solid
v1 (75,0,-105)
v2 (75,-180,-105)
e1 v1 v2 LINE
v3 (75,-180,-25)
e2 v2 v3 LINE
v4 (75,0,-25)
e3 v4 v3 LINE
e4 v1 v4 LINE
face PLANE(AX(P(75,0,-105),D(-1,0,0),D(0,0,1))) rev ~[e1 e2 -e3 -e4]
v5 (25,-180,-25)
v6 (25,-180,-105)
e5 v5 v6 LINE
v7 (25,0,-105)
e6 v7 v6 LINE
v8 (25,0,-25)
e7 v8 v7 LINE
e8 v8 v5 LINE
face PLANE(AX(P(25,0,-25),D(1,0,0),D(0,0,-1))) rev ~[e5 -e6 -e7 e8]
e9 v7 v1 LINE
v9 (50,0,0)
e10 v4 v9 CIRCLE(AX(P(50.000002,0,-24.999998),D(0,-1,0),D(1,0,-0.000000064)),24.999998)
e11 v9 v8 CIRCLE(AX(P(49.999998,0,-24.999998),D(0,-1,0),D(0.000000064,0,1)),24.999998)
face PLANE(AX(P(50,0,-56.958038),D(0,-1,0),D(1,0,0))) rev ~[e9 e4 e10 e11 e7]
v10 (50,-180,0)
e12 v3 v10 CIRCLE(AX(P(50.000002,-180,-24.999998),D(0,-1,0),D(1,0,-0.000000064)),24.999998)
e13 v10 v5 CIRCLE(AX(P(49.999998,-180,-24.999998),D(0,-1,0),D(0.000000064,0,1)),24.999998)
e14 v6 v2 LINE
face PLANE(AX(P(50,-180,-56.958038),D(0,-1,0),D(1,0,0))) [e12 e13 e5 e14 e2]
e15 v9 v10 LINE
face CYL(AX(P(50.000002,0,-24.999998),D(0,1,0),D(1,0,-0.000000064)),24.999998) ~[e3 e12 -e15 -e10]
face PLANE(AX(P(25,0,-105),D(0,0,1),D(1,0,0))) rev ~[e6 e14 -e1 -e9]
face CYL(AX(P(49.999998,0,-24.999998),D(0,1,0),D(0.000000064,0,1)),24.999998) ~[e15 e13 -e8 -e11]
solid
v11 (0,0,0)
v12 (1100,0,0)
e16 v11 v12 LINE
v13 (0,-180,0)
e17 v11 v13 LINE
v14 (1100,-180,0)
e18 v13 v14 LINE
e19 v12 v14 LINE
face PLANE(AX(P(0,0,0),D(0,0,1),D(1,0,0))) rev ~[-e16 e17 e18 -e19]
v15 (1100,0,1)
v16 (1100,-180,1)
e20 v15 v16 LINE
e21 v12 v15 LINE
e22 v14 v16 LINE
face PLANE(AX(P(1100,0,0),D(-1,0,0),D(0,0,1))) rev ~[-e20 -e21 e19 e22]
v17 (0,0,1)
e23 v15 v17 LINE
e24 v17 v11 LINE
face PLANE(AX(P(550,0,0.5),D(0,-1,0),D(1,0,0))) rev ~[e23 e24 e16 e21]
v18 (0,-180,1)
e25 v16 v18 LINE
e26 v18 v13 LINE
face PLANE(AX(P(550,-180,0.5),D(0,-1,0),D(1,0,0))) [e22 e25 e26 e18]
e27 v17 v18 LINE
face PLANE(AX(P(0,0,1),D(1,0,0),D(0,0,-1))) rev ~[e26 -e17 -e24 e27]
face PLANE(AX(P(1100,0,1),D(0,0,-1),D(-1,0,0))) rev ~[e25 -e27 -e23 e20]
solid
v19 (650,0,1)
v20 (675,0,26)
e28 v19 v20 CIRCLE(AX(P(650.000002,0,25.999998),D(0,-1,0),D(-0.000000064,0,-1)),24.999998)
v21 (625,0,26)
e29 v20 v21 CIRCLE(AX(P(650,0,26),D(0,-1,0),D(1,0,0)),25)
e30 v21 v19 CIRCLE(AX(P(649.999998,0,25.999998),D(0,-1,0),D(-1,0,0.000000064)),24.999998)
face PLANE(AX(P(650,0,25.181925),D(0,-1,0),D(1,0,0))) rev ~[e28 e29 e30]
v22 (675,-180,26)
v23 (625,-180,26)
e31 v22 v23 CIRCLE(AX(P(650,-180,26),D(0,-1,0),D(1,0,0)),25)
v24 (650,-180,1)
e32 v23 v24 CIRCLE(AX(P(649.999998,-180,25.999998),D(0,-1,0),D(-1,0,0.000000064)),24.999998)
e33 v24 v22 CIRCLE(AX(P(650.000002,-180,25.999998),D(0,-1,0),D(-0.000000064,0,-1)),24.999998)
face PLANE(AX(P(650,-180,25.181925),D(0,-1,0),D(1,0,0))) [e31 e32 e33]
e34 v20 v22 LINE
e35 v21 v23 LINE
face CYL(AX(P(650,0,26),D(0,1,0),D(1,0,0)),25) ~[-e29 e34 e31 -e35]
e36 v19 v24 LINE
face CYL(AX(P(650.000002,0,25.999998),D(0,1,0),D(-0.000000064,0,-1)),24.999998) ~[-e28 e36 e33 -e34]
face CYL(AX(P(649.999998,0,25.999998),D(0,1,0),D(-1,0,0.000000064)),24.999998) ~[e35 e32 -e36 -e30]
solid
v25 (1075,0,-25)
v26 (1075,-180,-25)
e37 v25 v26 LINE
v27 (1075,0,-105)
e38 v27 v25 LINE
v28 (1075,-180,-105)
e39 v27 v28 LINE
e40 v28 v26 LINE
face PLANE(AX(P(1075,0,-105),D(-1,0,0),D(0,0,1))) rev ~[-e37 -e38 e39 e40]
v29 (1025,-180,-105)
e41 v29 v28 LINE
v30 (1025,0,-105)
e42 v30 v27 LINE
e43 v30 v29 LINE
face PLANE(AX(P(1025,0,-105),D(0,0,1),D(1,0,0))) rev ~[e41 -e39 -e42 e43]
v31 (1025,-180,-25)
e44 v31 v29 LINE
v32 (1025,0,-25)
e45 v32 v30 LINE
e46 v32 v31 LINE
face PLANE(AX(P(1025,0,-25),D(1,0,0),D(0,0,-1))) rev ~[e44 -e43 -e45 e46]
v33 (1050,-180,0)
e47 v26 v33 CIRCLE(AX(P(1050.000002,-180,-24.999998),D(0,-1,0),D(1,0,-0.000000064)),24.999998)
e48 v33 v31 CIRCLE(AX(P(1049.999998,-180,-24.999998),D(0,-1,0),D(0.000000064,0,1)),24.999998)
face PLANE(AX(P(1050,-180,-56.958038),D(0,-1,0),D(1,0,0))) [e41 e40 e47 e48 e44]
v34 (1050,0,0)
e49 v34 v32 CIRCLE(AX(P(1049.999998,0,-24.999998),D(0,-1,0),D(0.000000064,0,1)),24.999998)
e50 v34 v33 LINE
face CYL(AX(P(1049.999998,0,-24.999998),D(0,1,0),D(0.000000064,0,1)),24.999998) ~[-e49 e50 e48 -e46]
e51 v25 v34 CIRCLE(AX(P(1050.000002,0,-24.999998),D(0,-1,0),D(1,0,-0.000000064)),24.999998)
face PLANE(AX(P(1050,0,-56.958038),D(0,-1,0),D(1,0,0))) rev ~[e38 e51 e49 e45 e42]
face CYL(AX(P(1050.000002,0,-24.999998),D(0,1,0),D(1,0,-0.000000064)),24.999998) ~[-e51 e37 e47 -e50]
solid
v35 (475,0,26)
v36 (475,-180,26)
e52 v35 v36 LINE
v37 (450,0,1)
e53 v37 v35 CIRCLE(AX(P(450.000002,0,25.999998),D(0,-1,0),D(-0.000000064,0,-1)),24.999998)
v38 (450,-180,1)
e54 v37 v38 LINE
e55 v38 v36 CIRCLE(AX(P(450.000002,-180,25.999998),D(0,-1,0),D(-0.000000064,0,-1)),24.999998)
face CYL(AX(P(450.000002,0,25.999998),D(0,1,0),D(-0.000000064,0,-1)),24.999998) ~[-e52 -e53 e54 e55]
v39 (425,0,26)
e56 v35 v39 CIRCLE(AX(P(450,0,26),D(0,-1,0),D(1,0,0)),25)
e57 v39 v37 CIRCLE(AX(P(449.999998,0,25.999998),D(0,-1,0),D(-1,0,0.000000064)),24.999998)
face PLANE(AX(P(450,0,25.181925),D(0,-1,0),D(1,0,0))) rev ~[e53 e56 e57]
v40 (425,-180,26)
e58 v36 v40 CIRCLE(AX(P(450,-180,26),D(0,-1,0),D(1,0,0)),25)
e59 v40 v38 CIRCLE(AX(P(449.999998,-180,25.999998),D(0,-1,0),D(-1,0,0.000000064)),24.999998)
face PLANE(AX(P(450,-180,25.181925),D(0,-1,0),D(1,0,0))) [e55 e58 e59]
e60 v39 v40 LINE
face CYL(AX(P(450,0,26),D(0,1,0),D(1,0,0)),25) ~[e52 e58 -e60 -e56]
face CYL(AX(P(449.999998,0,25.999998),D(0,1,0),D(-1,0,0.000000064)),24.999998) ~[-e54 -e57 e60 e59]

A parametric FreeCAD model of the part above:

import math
import FreeCAD as App
import Part
import Sketcher

V = App.Vector
Q = App.Units.Quantity


def add_polygon(sketch, points):
    """Adds a closed chain of lines whose ends are joined by coincident constraints."""
    first, n = sketch.GeometryCount, len(points)
    for a, b in zip(points, points[1:] + points[:1]):
        sketch.addGeometry(Part.LineSegment(App.Vector(*a, 0), App.Vector(*b, 0)), False)
    for i in range(n):
        sketch.addConstraint(Sketcher.Constraint("Coincident", first + i, 2, first + (i + 1) % n, 1))

doc = App.newDocument("Part")
body = doc.addObject("PartDesign::Body", "Body")

# Sketch on XZ plane
sketch1 = body.newObject("Sketcher::SketchObject", "Sketch")
sketch1.AttachmentSupport = (doc.getObject("XZ_Plane"), [""])
sketch1.MapMode = "FlatFace"
add_polygon(sketch1, [(0, 1), (0, 0), (1100, 0), (1100, 1)])  # lines 0-3
sketch1.addConstraint(Sketcher.Constraint("Vertical", 0))
sketch1.addConstraint(Sketcher.Constraint("Horizontal", 1))
sketch1.addConstraint(Sketcher.Constraint("Vertical", 2))
sketch1.addConstraint(Sketcher.Constraint("Horizontal", 3))
sketch1.addConstraint(Sketcher.Constraint("Coincident", 0, 2, -1, 1))
sketch1.addConstraint(Sketcher.Constraint("DistanceX", 1, 1, 1, 2, Q("1100 mm")))
sketch1.addConstraint(Sketcher.Constraint("DistanceY", 0, 2, 0, 1, Q("1 mm")))
pad1 = body.newObject("PartDesign::Pad", "Pad")
pad1.Profile = sketch1
pad1.Length = 180
body2 = doc.addObject("PartDesign::Body", "Body001")
body2.AllowCompound = True

# Sketch on XZ plane
sketch2 = body2.newObject("Sketcher::SketchObject", "Sketch001")
sketch2.AttachmentSupport = (doc.getObject("XZ_Plane001"), [""])
sketch2.MapMode = "FlatFace"
sketch2.addGeometry(Part.ArcOfCircle(Part.Circle(V(50, -25, 0), V(0, 0, 1), 25), math.radians(0), math.radians(90)), False)
sketch2.addGeometry(Part.ArcOfCircle(Part.Circle(V(50, -25, 0), V(0, 0, 1), 25), math.radians(90), math.radians(180)), False)
sketch2.addGeometry(Part.LineSegment(V(25, -25, 0), V(25, -105, 0)), False)
sketch2.addGeometry(Part.LineSegment(V(25, -105, 0), V(75, -105, 0)), False)
sketch2.addGeometry(Part.LineSegment(V(75, -105, 0), V(75, -25, 0)), False)
sketch2.addGeometry(Part.ArcOfCircle(Part.Circle(V(450, 26, 0), V(0, 0, 1), 25), math.radians(180), math.radians(270)), False)
sketch2.addGeometry(Part.ArcOfCircle(Part.Circle(V(450, 26, 0), V(0, 0, 1), 25), math.radians(-90), math.radians(0)), False)
sketch2.addGeometry(Part.ArcOfCircle(Part.Circle(V(450, 26, 0), V(0, 0, 1), 25), math.radians(0), math.radians(180)), False)
sketch2.addGeometry(Part.ArcOfCircle(Part.Circle(V(650, 26, 0), V(0, 0, 1), 25), math.radians(180), math.radians(270)), False)
sketch2.addGeometry(Part.ArcOfCircle(Part.Circle(V(650, 26, 0), V(0, 0, 1), 25), math.radians(-90), math.radians(0)), False)
sketch2.addGeometry(Part.ArcOfCircle(Part.Circle(V(650, 26, 0), V(0, 0, 1), 25), math.radians(0), math.radians(180)), False)
sketch2.addGeometry(Part.ArcOfCircle(Part.Circle(V(1050, -25, 0), V(0, 0, 1), 25), math.radians(0), math.radians(90)), False)
sketch2.addGeometry(Part.ArcOfCircle(Part.Circle(V(1050, -25, 0), V(0, 0, 1), 25), math.radians(90), math.radians(180)), False)
sketch2.addGeometry(Part.LineSegment(V(1025, -25, 0), V(1025, -105, 0)), False)
sketch2.addGeometry(Part.LineSegment(V(1025, -105, 0), V(1075, -105, 0)), False)
sketch2.addGeometry(Part.LineSegment(V(1075, -105, 0), V(1075, -25, 0)), False)
sketch2.addConstraint(Sketcher.Constraint("Tangent", 0, 2, 1, 1))
sketch2.addConstraint(Sketcher.Constraint("Tangent", 1, 2, 2, 1))
sketch2.addConstraint(Sketcher.Constraint("Coincident", 2, 2, 3, 1))
sketch2.addConstraint(Sketcher.Constraint("Coincident", 3, 2, 4, 1))
sketch2.addConstraint(Sketcher.Constraint("Tangent", 4, 2, 0, 1))
sketch2.addConstraint(Sketcher.Constraint("Tangent", 5, 2, 6, 1))
sketch2.addConstraint(Sketcher.Constraint("Tangent", 6, 2, 7, 1))
sketch2.addConstraint(Sketcher.Constraint("Tangent", 7, 2, 5, 1))
sketch2.addConstraint(Sketcher.Constraint("Tangent", 8, 2, 9, 1))
sketch2.addConstraint(Sketcher.Constraint("Tangent", 9, 2, 10, 1))
sketch2.addConstraint(Sketcher.Constraint("Tangent", 10, 2, 8, 1))
sketch2.addConstraint(Sketcher.Constraint("Tangent", 11, 2, 12, 1))
sketch2.addConstraint(Sketcher.Constraint("Tangent", 12, 2, 13, 1))
sketch2.addConstraint(Sketcher.Constraint("Coincident", 13, 2, 14, 1))
sketch2.addConstraint(Sketcher.Constraint("Coincident", 14, 2, 15, 1))
sketch2.addConstraint(Sketcher.Constraint("Tangent", 15, 2, 11, 1))
sketch2.addConstraint(Sketcher.Constraint("Vertical", 2))
sketch2.addConstraint(Sketcher.Constraint("Horizontal", 3))
sketch2.addConstraint(Sketcher.Constraint("Vertical", 4))
sketch2.addConstraint(Sketcher.Constraint("Vertical", 13))
sketch2.addConstraint(Sketcher.Constraint("Horizontal", 14))
sketch2.addConstraint(Sketcher.Constraint("Vertical", 15))
sketch2.addConstraint(Sketcher.Constraint("Equal", 0, 1))
sketch2.addConstraint(Sketcher.Constraint("Equal", 1, 5))
sketch2.addConstraint(Sketcher.Constraint("Equal", 7, 8))
sketch2.addConstraint(Sketcher.Constraint("Equal", 10, 11))
sketch2.addConstraint(Sketcher.Constraint("Equal", 11, 12))
sketch2.addConstraint(Sketcher.Constraint("PointOnObject", 0, 2, -1))
sketch2.addConstraint(Sketcher.Constraint("PointOnObject", 11, 2, -1))
sketch2.addConstraint(Sketcher.Constraint("Horizontal", 7, 3, 8, 3))
sketch2.addConstraint(Sketcher.Constraint("Horizontal", 10, 3, 6, 2))
sketch2.addConstraint(Sketcher.Constraint("Horizontal", 6, 2, 7, 2))
sketch2.addConstraint(Sketcher.Constraint("Horizontal", 7, 2, 9, 2))
sketch2.addConstraint(Sketcher.Constraint("Horizontal", 9, 2, 10, 2))
sketch2.addConstraint(Sketcher.Constraint("Horizontal", 3, 2, 13, 2))
sketch2.addConstraint(Sketcher.Constraint("Vertical", 1, 3, 0, 2))
sketch2.addConstraint(Sketcher.Constraint("Vertical", 7, 3, 5, 2))
sketch2.addConstraint(Sketcher.Constraint("Vertical", 10, 3, 8, 2))
sketch2.addConstraint(Sketcher.Constraint("Vertical", 12, 3, 11, 2))
sketch2.addConstraint(Sketcher.Constraint("Radius", 0, Q("24.999998 mm")))
sketch2.addConstraint(Sketcher.Constraint("DistanceY", 2, 2, 2, 1, Q("80 mm")))
sketch2.addConstraint(Sketcher.Constraint("DistanceX", -1, 1, 0, 3, Q("50.000002 mm")))
sketch2.addConstraint(Sketcher.Constraint("DistanceX", -1, 1, 5, 3, Q("449.999998 mm")))
sketch2.addConstraint(Sketcher.Constraint("DistanceY", -1, 1, 5, 3, Q("25.999998 mm")))
sketch2.addConstraint(Sketcher.Constraint("DistanceX", -1, 1, 8, 3, Q("649.999998 mm")))
sketch2.addConstraint(Sketcher.Constraint("DistanceX", -1, 1, 11, 3, Q("1050.000002 mm")))
pad2 = body2.newObject("PartDesign::Pad", "Pad001")
pad2.Profile = sketch2
pad2.Length = 180

doc.recompute()
